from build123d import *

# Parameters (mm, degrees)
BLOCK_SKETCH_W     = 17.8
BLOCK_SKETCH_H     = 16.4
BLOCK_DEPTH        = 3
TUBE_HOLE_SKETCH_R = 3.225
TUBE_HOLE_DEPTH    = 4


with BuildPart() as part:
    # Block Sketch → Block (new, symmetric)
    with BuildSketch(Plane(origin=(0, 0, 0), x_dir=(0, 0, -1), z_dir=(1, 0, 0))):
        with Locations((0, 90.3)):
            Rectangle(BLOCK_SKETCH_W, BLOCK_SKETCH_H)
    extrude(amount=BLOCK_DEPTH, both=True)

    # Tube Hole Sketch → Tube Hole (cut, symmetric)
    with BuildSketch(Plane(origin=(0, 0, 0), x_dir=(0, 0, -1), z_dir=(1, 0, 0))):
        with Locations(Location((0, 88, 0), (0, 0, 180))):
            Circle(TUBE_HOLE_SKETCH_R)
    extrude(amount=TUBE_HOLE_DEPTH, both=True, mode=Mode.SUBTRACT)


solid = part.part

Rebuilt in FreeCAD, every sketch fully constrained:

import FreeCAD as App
import Part
import Sketcher

doc = App.newDocument("Part")
body = doc.addObject("PartDesign::Body", "Body")

# Sketch on YZ plane
sketch1 = body.newObject("Sketcher::SketchObject", "Sketch")
sketch1.AttachmentSupport = (doc.getObject("YZ_Plane"), [""])
sketch1.MapMode = "FlatFace"
sketch1.addGeometry([
    Part.LineSegment(App.Vector(98, 9, 0), App.Vector(82, 9, 0)),
    Part.LineSegment(App.Vector(82, 9, 0), App.Vector(82, -9, 0)),
    Part.LineSegment(App.Vector(82, -9, 0), App.Vector(98, -9, 0)),
    Part.LineSegment(App.Vector(98, -9, 0), App.Vector(98, 9, 0)),
], False)
sketch1.addConstraint([
    Sketcher.Constraint("Coincident", 0, 2, 1, 1),
    Sketcher.Constraint("Coincident", 1, 2, 2, 1),
    Sketcher.Constraint("Coincident", 2, 2, 3, 1),
    Sketcher.Constraint("Coincident", 3, 2, 0, 1),
    Sketcher.Constraint("Horizontal", 0),
    Sketcher.Constraint("Vertical", 1),
    Sketcher.Constraint("Horizontal", 2),
    Sketcher.Constraint("Vertical", 3),
    Sketcher.Constraint("DistanceX", 0, 2, 0, 1, 16.4),
    Sketcher.Constraint("DistanceY", 1, 2, 1, 1, 17.8),
    Sketcher.Constraint("DistanceX", -1, 1, 0, 2, 82.1),
    Sketcher.Constraint("DistanceY", -1, 1, 0, 2, 8.9),
])
pad1 = body.newObject("PartDesign::Pad", "Pad")
pad1.Profile = sketch1
pad1.Length = 6
pad1.Midplane = True

# Sketch on YZ plane
sketch2 = body.newObject("Sketcher::SketchObject", "Sketch001")
sketch2.AttachmentSupport = (doc.getObject("YZ_Plane"), [""])
sketch2.MapMode = "FlatFace"
sketch2.addGeometry(Part.Circle(App.Vector(88, 0, 0), App.Vector(0, 0, 1), 3.2), False)
sketch2.addConstraint([
    Sketcher.Constraint("PointOnObject", 0, 3, -1),
    Sketcher.Constraint("Diameter", 0, 6.45),
    Sketcher.Constraint("DistanceX", -1, 1, 0, 3, 88.0),
])
pocket1 = body.newObject("PartDesign::Pocket", "Pocket")
pocket1.Profile = sketch2
pocket1.Length = 8
pocket1.Midplane = True

doc.recompute()
